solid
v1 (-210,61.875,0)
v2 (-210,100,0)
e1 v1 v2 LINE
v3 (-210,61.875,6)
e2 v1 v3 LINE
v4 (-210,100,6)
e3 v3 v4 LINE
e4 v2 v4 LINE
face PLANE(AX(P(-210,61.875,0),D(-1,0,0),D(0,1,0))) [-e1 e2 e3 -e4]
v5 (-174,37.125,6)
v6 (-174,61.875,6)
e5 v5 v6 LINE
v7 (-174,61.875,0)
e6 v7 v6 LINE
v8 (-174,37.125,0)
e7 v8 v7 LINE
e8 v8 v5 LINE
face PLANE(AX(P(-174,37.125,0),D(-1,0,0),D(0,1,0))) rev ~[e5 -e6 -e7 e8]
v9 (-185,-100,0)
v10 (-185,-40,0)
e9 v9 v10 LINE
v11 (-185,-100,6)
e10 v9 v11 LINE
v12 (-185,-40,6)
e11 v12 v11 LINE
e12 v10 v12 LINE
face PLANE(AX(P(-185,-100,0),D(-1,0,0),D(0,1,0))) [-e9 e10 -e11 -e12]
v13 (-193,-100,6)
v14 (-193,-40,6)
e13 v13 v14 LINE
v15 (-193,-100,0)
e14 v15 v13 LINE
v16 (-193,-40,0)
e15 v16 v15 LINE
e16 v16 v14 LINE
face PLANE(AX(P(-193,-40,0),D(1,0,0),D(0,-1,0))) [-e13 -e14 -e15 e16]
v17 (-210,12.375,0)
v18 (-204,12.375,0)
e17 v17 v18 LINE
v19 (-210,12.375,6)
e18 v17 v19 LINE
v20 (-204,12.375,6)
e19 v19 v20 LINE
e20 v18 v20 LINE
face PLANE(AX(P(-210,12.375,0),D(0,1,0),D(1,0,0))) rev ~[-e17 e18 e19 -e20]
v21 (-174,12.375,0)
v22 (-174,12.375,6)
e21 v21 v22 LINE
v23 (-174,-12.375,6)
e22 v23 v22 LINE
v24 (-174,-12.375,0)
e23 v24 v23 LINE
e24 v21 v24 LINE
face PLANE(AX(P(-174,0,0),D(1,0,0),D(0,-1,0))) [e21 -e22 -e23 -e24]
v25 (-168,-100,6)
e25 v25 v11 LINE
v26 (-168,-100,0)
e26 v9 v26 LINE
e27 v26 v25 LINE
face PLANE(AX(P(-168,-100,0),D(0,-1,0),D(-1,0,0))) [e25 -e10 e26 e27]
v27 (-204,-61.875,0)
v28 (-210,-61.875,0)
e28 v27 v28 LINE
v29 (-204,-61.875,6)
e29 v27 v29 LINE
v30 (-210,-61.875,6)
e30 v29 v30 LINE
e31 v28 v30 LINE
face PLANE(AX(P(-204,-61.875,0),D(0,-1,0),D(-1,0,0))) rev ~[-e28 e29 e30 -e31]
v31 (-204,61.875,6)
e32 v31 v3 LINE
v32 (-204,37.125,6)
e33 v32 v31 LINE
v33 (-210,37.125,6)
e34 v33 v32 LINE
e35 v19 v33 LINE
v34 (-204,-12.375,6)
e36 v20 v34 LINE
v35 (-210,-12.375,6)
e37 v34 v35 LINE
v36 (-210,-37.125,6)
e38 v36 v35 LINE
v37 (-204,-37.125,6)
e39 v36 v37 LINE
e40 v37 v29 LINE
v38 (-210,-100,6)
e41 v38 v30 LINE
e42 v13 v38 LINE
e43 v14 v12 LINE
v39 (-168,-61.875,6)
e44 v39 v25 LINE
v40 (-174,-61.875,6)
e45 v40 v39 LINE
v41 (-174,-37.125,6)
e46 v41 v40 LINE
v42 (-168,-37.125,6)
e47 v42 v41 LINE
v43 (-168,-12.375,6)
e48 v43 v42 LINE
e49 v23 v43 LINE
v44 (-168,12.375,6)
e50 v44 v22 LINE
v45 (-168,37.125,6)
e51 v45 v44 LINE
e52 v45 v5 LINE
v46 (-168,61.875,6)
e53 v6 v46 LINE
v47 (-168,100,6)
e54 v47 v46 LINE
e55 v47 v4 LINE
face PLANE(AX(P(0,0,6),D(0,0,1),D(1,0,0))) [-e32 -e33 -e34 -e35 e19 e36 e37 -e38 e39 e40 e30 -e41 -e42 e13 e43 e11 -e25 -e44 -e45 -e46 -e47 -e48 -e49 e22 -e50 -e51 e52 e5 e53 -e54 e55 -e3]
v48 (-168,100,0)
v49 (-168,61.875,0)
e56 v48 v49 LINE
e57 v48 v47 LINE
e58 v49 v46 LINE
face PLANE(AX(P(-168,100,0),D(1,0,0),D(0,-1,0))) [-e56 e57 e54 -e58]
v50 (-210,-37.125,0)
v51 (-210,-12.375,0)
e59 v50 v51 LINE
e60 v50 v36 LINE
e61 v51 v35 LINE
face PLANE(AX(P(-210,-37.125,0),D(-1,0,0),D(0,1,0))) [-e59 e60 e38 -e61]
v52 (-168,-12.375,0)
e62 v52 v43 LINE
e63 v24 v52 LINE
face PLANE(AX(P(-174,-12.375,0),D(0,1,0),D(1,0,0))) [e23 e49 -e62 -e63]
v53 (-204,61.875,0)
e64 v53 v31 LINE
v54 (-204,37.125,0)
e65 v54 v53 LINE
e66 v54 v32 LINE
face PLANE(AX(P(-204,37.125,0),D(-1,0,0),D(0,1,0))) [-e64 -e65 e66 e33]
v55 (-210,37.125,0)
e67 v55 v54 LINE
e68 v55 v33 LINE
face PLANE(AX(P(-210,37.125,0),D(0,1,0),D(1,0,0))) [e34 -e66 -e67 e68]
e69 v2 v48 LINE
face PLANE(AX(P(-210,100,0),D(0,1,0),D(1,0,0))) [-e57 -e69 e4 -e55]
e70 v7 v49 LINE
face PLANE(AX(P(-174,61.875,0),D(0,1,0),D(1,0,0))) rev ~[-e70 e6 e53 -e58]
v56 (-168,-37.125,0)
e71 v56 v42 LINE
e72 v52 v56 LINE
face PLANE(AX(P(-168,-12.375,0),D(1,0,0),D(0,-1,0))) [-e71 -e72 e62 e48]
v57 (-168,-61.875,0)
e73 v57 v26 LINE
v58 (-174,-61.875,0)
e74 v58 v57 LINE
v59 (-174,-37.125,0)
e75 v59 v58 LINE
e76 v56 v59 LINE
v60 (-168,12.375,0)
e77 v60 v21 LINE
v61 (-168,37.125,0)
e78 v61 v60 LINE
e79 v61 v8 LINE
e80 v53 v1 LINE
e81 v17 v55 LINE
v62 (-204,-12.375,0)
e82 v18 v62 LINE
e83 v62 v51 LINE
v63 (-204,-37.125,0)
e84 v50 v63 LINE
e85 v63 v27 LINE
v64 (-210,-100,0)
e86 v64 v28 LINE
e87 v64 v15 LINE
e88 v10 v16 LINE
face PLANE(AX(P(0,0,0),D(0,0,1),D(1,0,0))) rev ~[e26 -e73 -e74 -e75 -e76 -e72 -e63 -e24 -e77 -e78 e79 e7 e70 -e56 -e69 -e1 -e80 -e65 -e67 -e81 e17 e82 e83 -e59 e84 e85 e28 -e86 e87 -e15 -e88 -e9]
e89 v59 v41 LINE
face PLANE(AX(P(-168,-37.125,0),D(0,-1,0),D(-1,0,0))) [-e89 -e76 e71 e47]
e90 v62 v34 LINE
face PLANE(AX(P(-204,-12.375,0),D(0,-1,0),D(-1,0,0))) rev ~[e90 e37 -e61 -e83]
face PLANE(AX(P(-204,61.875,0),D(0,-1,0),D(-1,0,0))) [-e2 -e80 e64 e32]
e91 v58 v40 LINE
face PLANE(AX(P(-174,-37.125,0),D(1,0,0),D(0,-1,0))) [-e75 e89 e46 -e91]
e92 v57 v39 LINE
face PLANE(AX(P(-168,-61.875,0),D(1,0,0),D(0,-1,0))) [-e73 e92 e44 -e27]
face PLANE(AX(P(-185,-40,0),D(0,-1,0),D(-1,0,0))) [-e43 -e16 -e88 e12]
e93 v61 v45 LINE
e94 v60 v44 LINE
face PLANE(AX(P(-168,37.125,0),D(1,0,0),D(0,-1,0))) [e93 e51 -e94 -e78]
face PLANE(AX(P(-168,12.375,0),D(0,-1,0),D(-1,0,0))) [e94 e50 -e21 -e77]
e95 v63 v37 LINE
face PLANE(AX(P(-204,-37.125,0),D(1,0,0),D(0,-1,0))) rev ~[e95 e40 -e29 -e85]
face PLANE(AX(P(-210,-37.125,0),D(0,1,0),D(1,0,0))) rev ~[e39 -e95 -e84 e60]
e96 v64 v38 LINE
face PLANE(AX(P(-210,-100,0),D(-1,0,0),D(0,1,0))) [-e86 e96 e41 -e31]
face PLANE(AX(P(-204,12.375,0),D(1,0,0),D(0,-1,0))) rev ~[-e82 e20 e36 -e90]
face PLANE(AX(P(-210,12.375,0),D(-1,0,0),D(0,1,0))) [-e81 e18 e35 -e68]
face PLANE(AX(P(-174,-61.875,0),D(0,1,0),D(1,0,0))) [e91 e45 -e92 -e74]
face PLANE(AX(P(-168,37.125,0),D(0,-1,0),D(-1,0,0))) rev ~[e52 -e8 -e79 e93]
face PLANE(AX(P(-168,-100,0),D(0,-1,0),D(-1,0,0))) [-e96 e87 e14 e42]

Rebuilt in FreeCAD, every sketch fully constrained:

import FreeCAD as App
import Part
import Sketcher
Q = App.Units.Quantity


def add_polygon(sketch, points):
    """Adds a closed chain of lines whose ends are joined by coincident constraints."""
    first, n = sketch.GeometryCount, len(points)
    for a, b in zip(points, points[1:] + points[:1]):
        sketch.addGeometry(Part.LineSegment(App.Vector(*a, 0), App.Vector(*b, 0)), False)
    for i in range(n):
        sketch.addConstraint(Sketcher.Constraint("Coincident", first + i, 2, first + (i + 1) % n, 1))

doc = App.newDocument("Part")
body = doc.addObject("PartDesign::Body", "Body")

# Sketch on XY plane
sketch1 = body.newObject("Sketcher::SketchObject", "Sketch")
sketch1.AttachmentSupport = (doc.getObject("XY_Plane"), [""])
sketch1.MapMode = "FlatFace"
add_polygon(sketch1, [(-168, -100), (-168, -61.875), (-174, -61.875), (-174, -37.125), (-168, -37.125), (-168, -12.375), (-174, -12.375), (-174, 12.375), (-168, 12.375), (-168, 37.125), (-174, 37.125), (-174, 61.875), (-168, 61.875), (-168, 100), (-210, 100), (-210, 61.875), (-204, 61.875), (-204, 37.125), (-210, 37.125), (-210, 12.375), (-204, 12.375), (-204, -12.375), (-210, -12.375), (-210, -37.125), (-204, -37.125), (-204, -61.875), (-210, -61.875), (-210, -100)])  # lines 0-27
sketch1.addConstraint(Sketcher.Constraint("Vertical", 0))
sketch1.addConstraint(Sketcher.Constraint("Horizontal", 1))
sketch1.addConstraint(Sketcher.Constraint("Vertical", 2))
sketch1.addConstraint(Sketcher.Constraint("Horizontal", 3))
sketch1.addConstraint(Sketcher.Constraint("Vertical", 4))
sketch1.addConstraint(Sketcher.Constraint("Horizontal", 5))
sketch1.addConstraint(Sketcher.Constraint("Vertical", 6))
sketch1.addConstraint(Sketcher.Constraint("Horizontal", 7))
sketch1.addConstraint(Sketcher.Constraint("Vertical", 8))
sketch1.addConstraint(Sketcher.Constraint("Horizontal", 9))
sketch1.addConstraint(Sketcher.Constraint("Vertical", 10))
sketch1.addConstraint(Sketcher.Constraint("Horizontal", 11))
sketch1.addConstraint(Sketcher.Constraint("Vertical", 12))
sketch1.addConstraint(Sketcher.Constraint("Horizontal", 13))
sketch1.addConstraint(Sketcher.Constraint("Vertical", 14))
sketch1.addConstraint(Sketcher.Constraint("Horizontal", 15))
sketch1.addConstraint(Sketcher.Constraint("Vertical", 16))
sketch1.addConstraint(Sketcher.Constraint("Horizontal", 17))
sketch1.addConstraint(Sketcher.Constraint("Vertical", 18))
sketch1.addConstraint(Sketcher.Constraint("Horizontal", 19))
sketch1.addConstraint(Sketcher.Constraint("Vertical", 20))
sketch1.addConstraint(Sketcher.Constraint("Horizontal", 21))
sketch1.addConstraint(Sketcher.Constraint("Vertical", 22))
sketch1.addConstraint(Sketcher.Constraint("Horizontal", 23))
sketch1.addConstraint(Sketcher.Constraint("Vertical", 24))
sketch1.addConstraint(Sketcher.Constraint("Horizontal", 25))
sketch1.addConstraint(Sketcher.Constraint("Vertical", 26))
sketch1.addConstraint(Sketcher.Constraint("Horizontal", 27))
sketch1.addConstraint(Sketcher.Constraint("Symmetric", 4, 2, 7, 2, -1))
sketch1.addConstraint(Sketcher.Constraint("Symmetric", 2, 2, 9, 2, -1))
sketch1.addConstraint(Sketcher.Constraint("Symmetric", 0, 2, 11, 2, -1))
sketch1.addConstraint(Sketcher.Constraint("Symmetric", 18, 2, 21, 2, -1))
sketch1.addConstraint(Sketcher.Constraint("Symmetric", 16, 2, 23, 2, -1))
sketch1.addConstraint(Sketcher.Constraint("Symmetric", 14, 2, 25, 2, -1))
sketch1.addConstraint(Sketcher.Constraint("Horizontal", 11, 2, 14, 2))
sketch1.addConstraint(Sketcher.Constraint("Horizontal", 9, 2, 16, 2))
sketch1.addConstraint(Sketcher.Constraint("Horizontal", 7, 2, 18, 2))
sketch1.addConstraint(Sketcher.Constraint("Vertical", 0, 2, 3, 2))
sketch1.addConstraint(Sketcher.Constraint("Vertical", 2, 2, 5, 2))
sketch1.addConstraint(Sketcher.Constraint("Vertical", 14, 2, 17, 2))
sketch1.addConstraint(Sketcher.Constraint("Vertical", 16, 2, 19, 2))
sketch1.addConstraint(Sketcher.Constraint("Equal", 11, 15))
sketch1.addConstraint(Sketcher.Constraint("Equal", 2, 4))
sketch1.addConstraint(Sketcher.Constraint("Equal", 4, 6))
sketch1.addConstraint(Sketcher.Constraint("Equal", 0, 12))
sketch1.addConstraint(Sketcher.Constraint("DistanceX", 1, 2, 1, 1, Q("6 mm")))
sketch1.addConstraint(Sketcher.Constraint("DistanceX", 13, 2, 13, 1, Q("42 mm")))
sketch1.addConstraint(Sketcher.Constraint("DistanceY", 2, 1, 2, 2, Q("24.75 mm")))
sketch1.addConstraint(Sketcher.Constraint("DistanceX", 0, 2, -1, 1, Q("168 mm")))
sketch1.addConstraint(Sketcher.Constraint("DistanceY", -1, 1, 12, 2, Q("100 mm")))
pad1 = body.newObject("PartDesign::Pad", "Pad")
pad1.Profile = sketch1
pad1.Length = 6

# Sketch on XY plane
sketch2 = body.newObject("Sketcher::SketchObject", "Sketch001")
sketch2.AttachmentSupport = (doc.getObject("XY_Plane"), [""])
sketch2.MapMode = "FlatFace"
add_polygon(sketch2, [(-193, -100), (-185, -100), (-185, -40), (-193, -40)])  # lines 0-3
sketch2.addConstraint(Sketcher.Constraint("Horizontal", 0))
sketch2.addConstraint(Sketcher.Constraint("Vertical", 1))
sketch2.addConstraint(Sketcher.Constraint("Horizontal", 2))
sketch2.addConstraint(Sketcher.Constraint("Vertical", 3))
sketch2.addConstraint(Sketcher.Constraint("DistanceX", 0, 1, 0, 2, Q("8 mm")))
sketch2.addConstraint(Sketcher.Constraint("DistanceY", 1, 1, 1, 2, Q("60 mm")))
sketch2.addConstraint(Sketcher.Constraint("DistanceX", 0, 2, -1, 1, Q("185 mm")))
sketch2.addConstraint(Sketcher.Constraint("DistanceY", 0, 2, -1, 1, Q("100 mm")))
pocket1 = body.newObject("PartDesign::Pocket", "Pocket")
pocket1.Profile = sketch2
pocket1.Length = 10
pocket1.Reversed = True

doc.recompute()
